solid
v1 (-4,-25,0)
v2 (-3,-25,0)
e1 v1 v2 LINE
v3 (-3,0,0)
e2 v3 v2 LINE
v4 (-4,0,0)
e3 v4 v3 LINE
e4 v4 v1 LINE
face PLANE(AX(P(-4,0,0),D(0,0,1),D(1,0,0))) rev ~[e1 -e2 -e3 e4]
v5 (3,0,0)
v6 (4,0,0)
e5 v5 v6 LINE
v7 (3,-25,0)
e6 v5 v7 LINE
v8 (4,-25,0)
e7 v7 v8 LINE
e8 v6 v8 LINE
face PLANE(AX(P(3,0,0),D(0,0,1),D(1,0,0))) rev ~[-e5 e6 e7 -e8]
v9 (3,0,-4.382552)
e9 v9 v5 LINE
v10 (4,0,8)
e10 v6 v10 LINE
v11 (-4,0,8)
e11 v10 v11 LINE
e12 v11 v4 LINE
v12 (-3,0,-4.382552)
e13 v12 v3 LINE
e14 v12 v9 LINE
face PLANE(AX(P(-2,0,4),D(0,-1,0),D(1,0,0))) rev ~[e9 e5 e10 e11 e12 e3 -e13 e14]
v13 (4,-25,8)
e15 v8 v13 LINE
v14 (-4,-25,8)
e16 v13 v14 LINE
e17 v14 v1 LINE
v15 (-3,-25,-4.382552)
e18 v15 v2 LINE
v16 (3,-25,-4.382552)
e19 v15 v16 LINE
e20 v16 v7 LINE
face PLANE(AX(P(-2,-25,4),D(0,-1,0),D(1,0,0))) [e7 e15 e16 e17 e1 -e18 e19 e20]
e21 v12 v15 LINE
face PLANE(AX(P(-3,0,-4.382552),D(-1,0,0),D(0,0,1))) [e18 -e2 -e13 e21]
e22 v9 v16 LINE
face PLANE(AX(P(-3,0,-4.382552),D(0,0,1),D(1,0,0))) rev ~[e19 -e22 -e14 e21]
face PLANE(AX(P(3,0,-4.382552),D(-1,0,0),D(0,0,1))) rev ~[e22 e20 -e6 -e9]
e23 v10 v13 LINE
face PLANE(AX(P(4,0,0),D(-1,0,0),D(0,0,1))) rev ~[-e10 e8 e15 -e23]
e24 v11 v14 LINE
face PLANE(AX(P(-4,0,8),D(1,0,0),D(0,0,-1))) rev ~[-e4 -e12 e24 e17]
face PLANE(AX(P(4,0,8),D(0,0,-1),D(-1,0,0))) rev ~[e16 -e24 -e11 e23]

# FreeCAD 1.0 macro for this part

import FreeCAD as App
import Part
import Sketcher

V = App.Vector
Q = App.Units.Quantity

doc = App.newDocument("Part")
params = doc.addObject("Spreadsheet::Sheet", "Params")
for row, (alias, value) in enumerate([
    ("sketch1_width", "1 mm"),
    ("sketch1_width2", "6 mm"),
    ("pad1_length", "25 mm"),
], start=1):
    params.set(f"A{row}", alias)
    params.set(f"B{row}", "=" + value)
    params.setAlias(f"B{row}", alias)

body = doc.addObject("PartDesign::Body", "Body")

# Sketch on XZ plane
sketch1 = doc.addObject("Sketcher::SketchObject", "Sketch")
body.addObject(sketch1)
sketch1.AttachmentSupport = (doc.XZ_Plane, [""])
sketch1.MapMode = "FlatFace"
sketch1.addGeometry(Part.LineSegment(V(-4, 8, 0), V(-4, 0, 0)), False)
sketch1.addGeometry(Part.LineSegment(V(-4, 0, 0), V(-3, 0, 0)), False)
sketch1.addGeometry(Part.LineSegment(V(-3, 0, 0), V(-3, -4.382552, 0)), False)
sketch1.addGeometry(Part.LineSegment(V(-3, -4.382552, 0), V(3, -4.382552, 0)), False)
sketch1.addGeometry(Part.LineSegment(V(3, -4.382552, 0), V(3, 0, 0)), False)
sketch1.addGeometry(Part.LineSegment(V(3, 0, 0), V(4, 0, 0)), False)
sketch1.addGeometry(Part.LineSegment(V(4, 0, 0), V(4, 8, 0)), False)
sketch1.addGeometry(Part.LineSegment(V(4, 8, 0), V(-4, 8, 0)), False)
sketch1.addConstraint(Sketcher.Constraint("Coincident", 0, 2, 1, 1))
sketch1.addConstraint(Sketcher.Constraint("Coincident", 1, 2, 2, 1))
sketch1.addConstraint(Sketcher.Constraint("Coincident", 2, 2, 3, 1))
sketch1.addConstraint(Sketcher.Constraint("Coincident", 3, 2, 4, 1))
sketch1.addConstraint(Sketcher.Constraint("Coincident", 4, 2, 5, 1))
sketch1.addConstraint(Sketcher.Constraint("Coincident", 5, 2, 6, 1))
sketch1.addConstraint(Sketcher.Constraint("Coincident", 6, 2, 7, 1))
sketch1.addConstraint(Sketcher.Constraint("Coincident", 7, 2, 0, 1))
sketch1.addConstraint(Sketcher.Constraint("Vertical", 0))
sketch1.addConstraint(Sketcher.Constraint("Horizontal", 1))
sketch1.addConstraint(Sketcher.Constraint("Vertical", 2))
sketch1.addConstraint(Sketcher.Constraint("Horizontal", 3))
sketch1.addConstraint(Sketcher.Constraint("Vertical", 4))
sketch1.addConstraint(Sketcher.Constraint("Horizontal", 5))
sketch1.addConstraint(Sketcher.Constraint("Vertical", 6))
sketch1.addConstraint(Sketcher.Constraint("Horizontal", 7))
sketch1.addConstraint(Sketcher.Constraint("Symmetric", 1, 2, 4, 2, -1, 1))
sketch1.addConstraint(Sketcher.Constraint("Symmetric", 0, 2, 5, 2, -2))
sketch1.addConstraint(Sketcher.Constraint("Equal", 7, 0))
sketch1.addConstraint(Sketcher.Constraint("DistanceX", 1, 1, 1, 2, Q("1 mm")))
sketch1.addConstraint(Sketcher.Constraint("DistanceX", 3, 1, 3, 2, Q("6 mm")))
sketch1.addConstraint(Sketcher.Constraint("DistanceY", 2, 2, 2, 1, Q("4.382552 mm")))
sketch1.setExpression("Constraints[19]", "Params.sketch1_width")
sketch1.setExpression("Constraints[20]", "Params.sketch1_width2")
pad1 = doc.addObject("PartDesign::Pad", "Pad")
body.addObject(pad1)
pad1.Profile = sketch1
pad1.setExpression("Length", "Params.pad1_length")

doc.recompute()
